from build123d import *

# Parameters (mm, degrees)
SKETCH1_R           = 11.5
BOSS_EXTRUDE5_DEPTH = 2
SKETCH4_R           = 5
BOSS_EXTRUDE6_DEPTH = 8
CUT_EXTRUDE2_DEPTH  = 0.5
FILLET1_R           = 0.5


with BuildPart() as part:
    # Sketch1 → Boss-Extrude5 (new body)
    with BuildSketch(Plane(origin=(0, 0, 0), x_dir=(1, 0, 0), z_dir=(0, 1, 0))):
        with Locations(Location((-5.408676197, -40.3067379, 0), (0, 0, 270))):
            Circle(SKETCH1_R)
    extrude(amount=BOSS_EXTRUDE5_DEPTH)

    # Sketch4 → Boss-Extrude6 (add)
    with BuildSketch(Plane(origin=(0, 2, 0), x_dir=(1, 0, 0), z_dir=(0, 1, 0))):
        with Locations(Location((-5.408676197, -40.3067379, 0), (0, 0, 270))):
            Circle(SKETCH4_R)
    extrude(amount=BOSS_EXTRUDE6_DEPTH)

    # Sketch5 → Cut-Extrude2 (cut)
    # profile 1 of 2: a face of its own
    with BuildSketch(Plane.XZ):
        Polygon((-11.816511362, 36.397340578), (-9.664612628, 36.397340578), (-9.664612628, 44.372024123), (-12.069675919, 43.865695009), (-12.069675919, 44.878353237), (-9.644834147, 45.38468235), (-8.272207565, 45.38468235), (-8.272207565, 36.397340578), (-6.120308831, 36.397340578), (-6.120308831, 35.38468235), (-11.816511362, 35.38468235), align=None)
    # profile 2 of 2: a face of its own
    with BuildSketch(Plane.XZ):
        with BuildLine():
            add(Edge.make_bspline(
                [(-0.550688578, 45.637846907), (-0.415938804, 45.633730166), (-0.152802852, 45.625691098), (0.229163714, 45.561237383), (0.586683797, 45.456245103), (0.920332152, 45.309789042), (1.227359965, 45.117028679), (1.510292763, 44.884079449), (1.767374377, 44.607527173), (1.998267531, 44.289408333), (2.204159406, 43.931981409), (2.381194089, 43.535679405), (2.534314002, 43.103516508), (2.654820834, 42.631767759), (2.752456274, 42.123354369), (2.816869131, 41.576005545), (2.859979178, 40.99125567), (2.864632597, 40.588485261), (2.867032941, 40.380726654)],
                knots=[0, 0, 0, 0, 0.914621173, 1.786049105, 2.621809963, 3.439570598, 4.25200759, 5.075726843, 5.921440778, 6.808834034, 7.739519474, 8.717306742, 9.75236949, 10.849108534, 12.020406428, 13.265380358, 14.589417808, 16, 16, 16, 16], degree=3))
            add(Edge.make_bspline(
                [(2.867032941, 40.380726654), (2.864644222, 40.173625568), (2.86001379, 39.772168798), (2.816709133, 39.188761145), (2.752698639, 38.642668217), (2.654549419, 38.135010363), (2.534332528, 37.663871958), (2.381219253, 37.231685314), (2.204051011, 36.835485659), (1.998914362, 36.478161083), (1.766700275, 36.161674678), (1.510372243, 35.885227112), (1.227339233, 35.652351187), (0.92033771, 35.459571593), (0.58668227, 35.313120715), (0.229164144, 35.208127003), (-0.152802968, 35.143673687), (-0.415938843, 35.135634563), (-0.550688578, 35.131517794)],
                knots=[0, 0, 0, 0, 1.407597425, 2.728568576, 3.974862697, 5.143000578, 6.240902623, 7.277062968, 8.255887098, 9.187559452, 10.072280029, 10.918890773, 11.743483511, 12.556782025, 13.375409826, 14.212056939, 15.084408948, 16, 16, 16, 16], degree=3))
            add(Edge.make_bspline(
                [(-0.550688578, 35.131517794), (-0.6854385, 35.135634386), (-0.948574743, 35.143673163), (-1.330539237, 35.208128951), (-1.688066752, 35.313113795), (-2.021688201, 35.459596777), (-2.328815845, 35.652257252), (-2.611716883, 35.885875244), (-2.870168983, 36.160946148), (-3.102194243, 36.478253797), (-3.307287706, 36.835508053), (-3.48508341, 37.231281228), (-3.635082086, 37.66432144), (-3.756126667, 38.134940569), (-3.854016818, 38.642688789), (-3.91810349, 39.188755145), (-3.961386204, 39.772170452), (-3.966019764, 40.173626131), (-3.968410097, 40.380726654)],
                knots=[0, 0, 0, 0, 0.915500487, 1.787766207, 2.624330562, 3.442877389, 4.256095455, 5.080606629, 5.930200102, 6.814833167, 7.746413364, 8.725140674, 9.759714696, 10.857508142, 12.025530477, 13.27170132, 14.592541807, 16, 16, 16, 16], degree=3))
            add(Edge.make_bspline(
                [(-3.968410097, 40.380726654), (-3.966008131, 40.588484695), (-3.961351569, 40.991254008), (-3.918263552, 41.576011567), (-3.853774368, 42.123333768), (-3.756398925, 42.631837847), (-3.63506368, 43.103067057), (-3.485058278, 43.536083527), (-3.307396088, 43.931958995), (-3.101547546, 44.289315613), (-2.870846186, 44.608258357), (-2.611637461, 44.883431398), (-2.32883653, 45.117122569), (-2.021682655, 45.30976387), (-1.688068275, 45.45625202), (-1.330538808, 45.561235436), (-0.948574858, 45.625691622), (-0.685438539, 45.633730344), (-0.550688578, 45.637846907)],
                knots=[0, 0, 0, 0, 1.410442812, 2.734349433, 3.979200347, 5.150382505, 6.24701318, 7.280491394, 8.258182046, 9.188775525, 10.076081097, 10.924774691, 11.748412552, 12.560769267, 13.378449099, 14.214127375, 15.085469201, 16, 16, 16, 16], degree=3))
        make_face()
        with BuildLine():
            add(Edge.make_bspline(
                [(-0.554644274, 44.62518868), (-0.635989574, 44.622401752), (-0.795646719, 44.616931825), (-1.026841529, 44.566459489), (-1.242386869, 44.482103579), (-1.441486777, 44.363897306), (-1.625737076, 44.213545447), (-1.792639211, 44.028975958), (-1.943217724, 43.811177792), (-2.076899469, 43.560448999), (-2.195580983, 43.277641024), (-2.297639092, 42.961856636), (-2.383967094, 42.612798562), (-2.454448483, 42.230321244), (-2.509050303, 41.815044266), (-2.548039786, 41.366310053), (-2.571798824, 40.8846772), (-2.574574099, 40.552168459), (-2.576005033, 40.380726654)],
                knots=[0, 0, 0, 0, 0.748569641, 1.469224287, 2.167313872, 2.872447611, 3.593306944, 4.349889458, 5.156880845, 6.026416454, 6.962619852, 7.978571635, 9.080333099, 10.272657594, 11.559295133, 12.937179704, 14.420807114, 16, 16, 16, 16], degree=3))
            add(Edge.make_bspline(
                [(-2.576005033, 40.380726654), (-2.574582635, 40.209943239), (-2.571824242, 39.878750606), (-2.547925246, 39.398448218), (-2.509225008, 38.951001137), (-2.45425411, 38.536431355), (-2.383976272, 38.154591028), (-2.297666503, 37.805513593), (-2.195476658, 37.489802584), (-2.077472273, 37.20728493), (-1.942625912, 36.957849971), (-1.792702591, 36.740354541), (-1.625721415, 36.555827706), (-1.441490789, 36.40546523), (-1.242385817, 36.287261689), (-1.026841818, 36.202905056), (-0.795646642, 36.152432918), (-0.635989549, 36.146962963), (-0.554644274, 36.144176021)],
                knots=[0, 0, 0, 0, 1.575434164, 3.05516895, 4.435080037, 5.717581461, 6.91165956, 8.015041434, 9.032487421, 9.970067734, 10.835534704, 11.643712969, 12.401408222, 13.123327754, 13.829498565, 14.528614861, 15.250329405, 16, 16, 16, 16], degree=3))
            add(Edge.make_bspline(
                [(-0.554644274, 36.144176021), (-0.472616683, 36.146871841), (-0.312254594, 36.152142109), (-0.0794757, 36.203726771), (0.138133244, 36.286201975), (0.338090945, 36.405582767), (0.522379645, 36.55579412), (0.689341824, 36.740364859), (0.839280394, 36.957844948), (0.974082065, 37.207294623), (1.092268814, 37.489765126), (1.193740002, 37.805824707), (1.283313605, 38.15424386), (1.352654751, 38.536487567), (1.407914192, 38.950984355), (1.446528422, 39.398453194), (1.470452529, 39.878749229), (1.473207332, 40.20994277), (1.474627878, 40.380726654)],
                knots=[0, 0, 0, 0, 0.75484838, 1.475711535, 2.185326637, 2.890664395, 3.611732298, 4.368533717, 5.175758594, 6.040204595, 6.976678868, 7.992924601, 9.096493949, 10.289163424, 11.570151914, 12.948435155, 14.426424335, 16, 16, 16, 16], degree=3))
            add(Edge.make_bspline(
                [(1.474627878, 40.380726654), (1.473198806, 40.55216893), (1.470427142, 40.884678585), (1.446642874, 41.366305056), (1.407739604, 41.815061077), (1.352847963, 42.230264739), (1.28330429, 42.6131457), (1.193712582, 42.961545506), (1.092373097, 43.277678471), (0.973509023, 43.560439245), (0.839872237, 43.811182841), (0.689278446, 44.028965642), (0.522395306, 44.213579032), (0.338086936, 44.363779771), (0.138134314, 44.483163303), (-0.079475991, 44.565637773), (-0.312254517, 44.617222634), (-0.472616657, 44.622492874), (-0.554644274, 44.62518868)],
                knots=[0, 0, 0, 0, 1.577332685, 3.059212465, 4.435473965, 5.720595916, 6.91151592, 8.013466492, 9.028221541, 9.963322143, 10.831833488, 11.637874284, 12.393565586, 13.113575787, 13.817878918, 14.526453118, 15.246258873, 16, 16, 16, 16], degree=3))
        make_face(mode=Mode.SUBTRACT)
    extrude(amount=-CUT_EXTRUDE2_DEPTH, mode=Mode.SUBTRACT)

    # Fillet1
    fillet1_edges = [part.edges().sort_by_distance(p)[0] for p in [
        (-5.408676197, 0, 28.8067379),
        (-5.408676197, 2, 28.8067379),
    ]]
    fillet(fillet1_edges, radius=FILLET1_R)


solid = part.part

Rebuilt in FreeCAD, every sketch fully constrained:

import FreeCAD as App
import Part
import Sketcher

V = App.Vector
Q = App.Units.Quantity


def edges_at(feature, points):
    """Names of the edges that pass closest to the given points."""
    edges = feature.Shape.Edges
    near = lambda p: min(range(len(edges)), key=lambda i: edges[i].distToShape(Part.Vertex(*p))[0])
    return sorted({f"Edge{near(p) + 1}" for p in points})


def add_polygon(sketch, points):
    """Adds a closed chain of lines whose ends are joined by coincident constraints."""
    first, n = sketch.GeometryCount, len(points)
    for a, b in zip(points, points[1:] + points[:1]):
        sketch.addGeometry(Part.LineSegment(App.Vector(*a, 0), App.Vector(*b, 0)), False)
    for i in range(n):
        sketch.addConstraint(Sketcher.Constraint("Coincident", first + i, 2, first + (i + 1) % n, 1))

doc = App.newDocument("Part")
body = doc.addObject("PartDesign::Body", "Body")

# Sketch on XZ plane
sketch1 = body.newObject("Sketcher::SketchObject", "Sketch")
sketch1.AttachmentSupport = (doc.getObject("XZ_Plane"), [""])
sketch1.MapMode = "FlatFace"
sketch1.addGeometry(Part.Circle(V(-5, 40, 0), V(0, 0, 1), 12), False)
sketch1.addConstraint([
    Sketcher.Constraint("Diameter", 0, Q("23 mm")),
    Sketcher.Constraint("DistanceX", 0, 3, -1, 1, Q("5.408676 mm")),
    Sketcher.Constraint("DistanceY", -1, 1, 0, 3, Q("40.306738 mm")),
])
pad1 = body.newObject("PartDesign::Pad", "Pad")
pad1.Profile = sketch1
pad1.Length = 2
pad1.Reversed = True

# Sketch on XZ plane
sketch2 = body.newObject("Sketcher::SketchObject", "Sketch001")
sketch2.AttachmentSupport = (doc.getObject("XZ_Plane"), [""])
sketch2.MapMode = "FlatFace"
sketch2.AttachmentOffset = App.Placement(V(0, 0, -2), App.Rotation())
sketch2.addGeometry(Part.Circle(V(-5, 40, 0), V(0, 0, 1), 5), False)
sketch2.addConstraint([
    Sketcher.Constraint("Diameter", 0, Q("10 mm")),
    Sketcher.Constraint("DistanceX", 0, 3, -1, 1, Q("5.408676 mm")),
    Sketcher.Constraint("DistanceY", -1, 1, 0, 3, Q("40.306738 mm")),
])
pad2 = body.newObject("PartDesign::Pad", "Pad001")
pad2.Profile = sketch2
pad2.Length = 8
pad2.Reversed = True

# Sketch on XZ plane
sketch3 = body.newObject("Sketcher::SketchObject", "Sketch002")
sketch3.AttachmentSupport = (doc.getObject("XZ_Plane"), [""])
sketch3.MapMode = "FlatFace"
add_polygon(sketch3, [(-9.664613, 36.397341), (-11.816511, 36.397341), (-11.816511, 35.384682), (-6.120309, 35.384682), (-6.120309, 36.397341), (-8.272208, 36.397341), (-8.272208, 45.384682), (-9.644834, 45.384682), (-12.069676, 44.878353), (-12.069676, 43.865695), (-9.664613, 44.372024)])  # lines 0-10
sketch3.addGeometry(Part.BSplineCurve([V(-0.550689, 45.637847, 0), V(-0.415939, 45.63373, 0), V(-0.152803, 45.625691, 0), V(0.229164, 45.561237, 0), V(0.586684, 45.456245, 0), V(0.920332, 45.309789, 0), V(1.22736, 45.117029, 0), V(1.510293, 44.884079, 0), V(1.767374, 44.607527, 0), V(1.998268, 44.289408, 0), V(2.204159, 43.931981, 0), V(2.381194, 43.535679, 0), V(2.534314, 43.103517, 0), V(2.654821, 42.631768, 0), V(2.752456, 42.123354, 0), V(2.816869, 41.576006, 0), V(2.859979, 40.991256, 0), V(2.864633, 40.588485, 0), V(2.867033, 40.380727, 0)], [4, 1, 1, 1, 1, 1, 1, 1, 1, 1, 1, 1, 1, 1, 1, 1, 4], [0, 0.914621173, 1.786049105, 2.621809963, 3.439570598, 4.25200759, 5.075726843, 5.921440778, 6.808834034, 7.739519474, 8.717306742, 9.75236949, 10.849108534, 12.020406428, 13.265380358, 14.589417808, 16], False, 3, [1, 1, 1, 1, 1, 1, 1, 1, 1, 1, 1, 1, 1, 1, 1, 1, 1, 1, 1], False), False)  # 11
sketch3.addGeometry(Part.BSplineCurve([V(-3.96841, 40.380727, 0), V(-3.966008, 40.588485, 0), V(-3.961352, 40.991254, 0), V(-3.918264, 41.576012, 0), V(-3.853774, 42.123334, 0), V(-3.756399, 42.631838, 0), V(-3.635064, 43.103067, 0), V(-3.485058, 43.536084, 0), V(-3.307396, 43.931959, 0), V(-3.101548, 44.289316, 0), V(-2.870846, 44.608258, 0), V(-2.611637, 44.883431, 0), V(-2.328837, 45.117123, 0), V(-2.021683, 45.309764, 0), V(-1.688068, 45.456252, 0), V(-1.330539, 45.561235, 0), V(-0.948575, 45.625692, 0), V(-0.685439, 45.63373, 0), V(-0.550689, 45.637847, 0)], [4, 1, 1, 1, 1, 1, 1, 1, 1, 1, 1, 1, 1, 1, 1, 1, 4], [0, 1.410442812, 2.734349433, 3.979200347, 5.150382505, 6.24701318, 7.280491394, 8.258182046, 9.188775525, 10.076081097, 10.924774691, 11.748412552, 12.560769267, 13.378449099, 14.214127375, 15.085469201, 16], False, 3, [1, 1, 1, 1, 1, 1, 1, 1, 1, 1, 1, 1, 1, 1, 1, 1, 1, 1, 1], False), False)  # 12
sketch3.addGeometry(Part.BSplineCurve([V(-0.550689, 35.131518, 0), V(-0.685438, 35.135634, 0), V(-0.948575, 35.143673, 0), V(-1.330539, 35.208129, 0), V(-1.688067, 35.313114, 0), V(-2.021688, 35.459597, 0), V(-2.328816, 35.652257, 0), V(-2.611717, 35.885875, 0), V(-2.870169, 36.160946, 0), V(-3.102194, 36.478254, 0), V(-3.307288, 36.835508, 0), V(-3.485083, 37.231281, 0), V(-3.635082, 37.664321, 0), V(-3.756127, 38.134941, 0), V(-3.854017, 38.642689, 0), V(-3.918103, 39.188755, 0), V(-3.961386, 39.77217, 0), V(-3.96602, 40.173626, 0), V(-3.96841, 40.380727, 0)], [4, 1, 1, 1, 1, 1, 1, 1, 1, 1, 1, 1, 1, 1, 1, 1, 4], [0, 0.915500487, 1.787766207, 2.624330562, 3.442877389, 4.256095455, 5.080606629, 5.930200102, 6.814833167, 7.746413364, 8.725140674, 9.759714696, 10.857508142, 12.025530477, 13.27170132, 14.592541807, 16], False, 3, [1, 1, 1, 1, 1, 1, 1, 1, 1, 1, 1, 1, 1, 1, 1, 1, 1, 1, 1], False), False)  # 13
sketch3.addGeometry(Part.BSplineCurve([V(2.867033, 40.380727, 0), V(2.864644, 40.173626, 0), V(2.860014, 39.772169, 0), V(2.816709, 39.188761, 0), V(2.752699, 38.642668, 0), V(2.654549, 38.13501, 0), V(2.534333, 37.663872, 0), V(2.381219, 37.231685, 0), V(2.204051, 36.835486, 0), V(1.998914, 36.478161, 0), V(1.7667, 36.161675, 0), V(1.510372, 35.885227, 0), V(1.227339, 35.652351, 0), V(0.920338, 35.459572, 0), V(0.586682, 35.313121, 0), V(0.229164, 35.208127, 0), V(-0.152803, 35.143674, 0), V(-0.415939, 35.135635, 0), V(-0.550689, 35.131518, 0)], [4, 1, 1, 1, 1, 1, 1, 1, 1, 1, 1, 1, 1, 1, 1, 1, 4], [0, 1.407597425, 2.728568576, 3.974862697, 5.143000578, 6.240902623, 7.277062968, 8.255887098, 9.187559452, 10.072280029, 10.918890773, 11.743483511, 12.556782025, 13.375409826, 14.212056939, 15.084408948, 16], False, 3, [1, 1, 1, 1, 1, 1, 1, 1, 1, 1, 1, 1, 1, 1, 1, 1, 1, 1, 1], False), False)  # 14
sketch3.addGeometry(Part.BSplineCurve([V(1.474628, 40.380727, 0), V(1.473199, 40.552169, 0), V(1.470427, 40.884679, 0), V(1.446643, 41.366305, 0), V(1.40774, 41.815061, 0), V(1.352848, 42.230265, 0), V(1.283304, 42.613146, 0), V(1.193713, 42.961546, 0), V(1.092373, 43.277678, 0), V(0.973509, 43.560439, 0), V(0.839872, 43.811183, 0), V(0.689278, 44.028966, 0), V(0.522395, 44.213579, 0), V(0.338087, 44.36378, 0), V(0.138134, 44.483163, 0), V(-0.079476, 44.565638, 0), V(-0.312255, 44.617223, 0), V(-0.472617, 44.622493, 0), V(-0.554644, 44.625189, 0)], [4, 1, 1, 1, 1, 1, 1, 1, 1, 1, 1, 1, 1, 1, 1, 1, 4], [0, 1.577332685, 3.059212465, 4.435473965, 5.720595916, 6.91151592, 8.013466492, 9.028221541, 9.963322143, 10.831833488, 11.637874284, 12.393565586, 13.113575787, 13.817878918, 14.526453118, 15.246258873, 16], False, 3, [1, 1, 1, 1, 1, 1, 1, 1, 1, 1, 1, 1, 1, 1, 1, 1, 1, 1, 1], False), False)  # 15
sketch3.addGeometry(Part.BSplineCurve([V(-0.554644, 36.144176, 0), V(-0.472617, 36.146872, 0), V(-0.312255, 36.152142, 0), V(-0.079476, 36.203727, 0), V(0.138133, 36.286202, 0), V(0.338091, 36.405583, 0), V(0.52238, 36.555794, 0), V(0.689342, 36.740365, 0), V(0.83928, 36.957845, 0), V(0.974082, 37.207295, 0), V(1.092269, 37.489765, 0), V(1.19374, 37.805825, 0), V(1.283314, 38.154244, 0), V(1.352655, 38.536488, 0), V(1.407914, 38.950984, 0), V(1.446528, 39.398453, 0), V(1.470453, 39.878749, 0), V(1.473207, 40.209943, 0), V(1.474628, 40.380727, 0)], [4, 1, 1, 1, 1, 1, 1, 1, 1, 1, 1, 1, 1, 1, 1, 1, 4], [0, 0.75484838, 1.475711535, 2.185326637, 2.890664395, 3.611732298, 4.368533717, 5.175758594, 6.040204595, 6.976678868, 7.992924601, 9.096493949, 10.289163424, 11.570151914, 12.948435155, 14.426424335, 16], False, 3, [1, 1, 1, 1, 1, 1, 1, 1, 1, 1, 1, 1, 1, 1, 1, 1, 1, 1, 1], False), False)  # 16
sketch3.addGeometry(Part.BSplineCurve([V(-2.576005, 40.380727, 0), V(-2.574583, 40.209943, 0), V(-2.571824, 39.878751, 0), V(-2.547925, 39.398448, 0), V(-2.509225, 38.951001, 0), V(-2.454254, 38.536431, 0), V(-2.383976, 38.154591, 0), V(-2.297667, 37.805514, 0), V(-2.195477, 37.489803, 0), V(-2.077472, 37.207285, 0), V(-1.942626, 36.95785, 0), V(-1.792703, 36.740355, 0), V(-1.625721, 36.555828, 0), V(-1.441491, 36.405465, 0), V(-1.242386, 36.287262, 0), V(-1.026842, 36.202905, 0), V(-0.795647, 36.152433, 0), V(-0.63599, 36.146963, 0), V(-0.554644, 36.144176, 0)], [4, 1, 1, 1, 1, 1, 1, 1, 1, 1, 1, 1, 1, 1, 1, 1, 4], [0, 1.575434164, 3.05516895, 4.435080037, 5.717581461, 6.91165956, 8.015041434, 9.032487421, 9.970067734, 10.835534704, 11.643712969, 12.401408222, 13.123327754, 13.829498565, 14.528614861, 15.250329405, 16], False, 3, [1, 1, 1, 1, 1, 1, 1, 1, 1, 1, 1, 1, 1, 1, 1, 1, 1, 1, 1], False), False)  # 17
sketch3.addGeometry(Part.BSplineCurve([V(-0.554644, 44.625189, 0), V(-0.63599, 44.622402, 0), V(-0.795647, 44.616932, 0), V(-1.026842, 44.566459, 0), V(-1.242387, 44.482104, 0), V(-1.441487, 44.363897, 0), V(-1.625737, 44.213545, 0), V(-1.792639, 44.028976, 0), V(-1.943218, 43.811178, 0), V(-2.076899, 43.560449, 0), V(-2.195581, 43.277641, 0), V(-2.297639, 42.961857, 0), V(-2.383967, 42.612799, 0), V(-2.454448, 42.230321, 0), V(-2.50905, 41.815044, 0), V(-2.54804, 41.36631, 0), V(-2.571799, 40.884677, 0), V(-2.574574, 40.552168, 0), V(-2.576005, 40.380727, 0)], [4, 1, 1, 1, 1, 1, 1, 1, 1, 1, 1, 1, 1, 1, 1, 1, 4], [0, 0.748569641, 1.469224287, 2.167313872, 2.872447611, 3.593306944, 4.349889458, 5.156880845, 6.026416454, 6.962619852, 7.978571635, 9.080333099, 10.272657594, 11.559295133, 12.937179704, 14.420807114, 16], False, 3, [1, 1, 1, 1, 1, 1, 1, 1, 1, 1, 1, 1, 1, 1, 1, 1, 1, 1, 1], False), False)  # 18
sketch3.addConstraint([
    Sketcher.Constraint("Block", 11),
    Sketcher.Constraint("Block", 12),
    Sketcher.Constraint("Block", 13),
    Sketcher.Constraint("Block", 14),
    Sketcher.Constraint("Block", 15),
    Sketcher.Constraint("Block", 16),
    Sketcher.Constraint("Block", 17),
    Sketcher.Constraint("Block", 18),
    Sketcher.Constraint("Horizontal", 0),
    Sketcher.Constraint("Vertical", 1),
    Sketcher.Constraint("Horizontal", 2),
    Sketcher.Constraint("Vertical", 3),
    Sketcher.Constraint("Horizontal", 4),
    Sketcher.Constraint("Vertical", 5),
    Sketcher.Constraint("Horizontal", 6),
    Sketcher.Constraint("Vertical", 8),
    Sketcher.Constraint("Vertical", 10),
    Sketcher.Constraint("Horizontal", 0, 2, 3, 2),
    Sketcher.Constraint("Equal", 0, 4),
    Sketcher.Constraint("Equal", 3, 8),
    Sketcher.Constraint("DistanceY", 2, 2, 5, 2, Q("10 mm")),
    Sketcher.Constraint("DistanceX", 0, 2, 0, 1, Q("2.151899 mm")),
    Sketcher.Constraint("DistanceY", 1, 2, 1, 1, Q("1.012658 mm")),
    Sketcher.Constraint("Distance", 7, Q("2.477141 mm")),
    Sketcher.Constraint("DistanceX", 2, 1, 2, 2, Q("5.696203 mm")),
    Sketcher.Constraint("DistanceX", 6, 2, 6, 1, Q("1.372627 mm")),
    Sketcher.Constraint("DistanceY", 10, 2, 10, 1, Q("7.974684 mm")),
    Sketcher.Constraint("DistanceX", 0, 2, -1, 1, Q("11.816511 mm")),
    Sketcher.Constraint("DistanceY", -1, 1, 0, 2, Q("36.397341 mm")),
    Sketcher.Constraint("DistanceX", 7, 2, 6, 2, Q("2.424842 mm")),
])
pocket1 = body.newObject("PartDesign::Pocket", "Pocket")
pocket1.Profile = sketch3
pocket1.Length = 0.5
doc.recompute()

fillet = body.newObject("PartDesign::Fillet", "Fillet")
fillet.Base = (pocket1, edges_at(pocket1, [(-5.409, 0, 28.807), (-5.409, 2, 28.807)]))
fillet.Radius = 0.5

doc.recompute()
